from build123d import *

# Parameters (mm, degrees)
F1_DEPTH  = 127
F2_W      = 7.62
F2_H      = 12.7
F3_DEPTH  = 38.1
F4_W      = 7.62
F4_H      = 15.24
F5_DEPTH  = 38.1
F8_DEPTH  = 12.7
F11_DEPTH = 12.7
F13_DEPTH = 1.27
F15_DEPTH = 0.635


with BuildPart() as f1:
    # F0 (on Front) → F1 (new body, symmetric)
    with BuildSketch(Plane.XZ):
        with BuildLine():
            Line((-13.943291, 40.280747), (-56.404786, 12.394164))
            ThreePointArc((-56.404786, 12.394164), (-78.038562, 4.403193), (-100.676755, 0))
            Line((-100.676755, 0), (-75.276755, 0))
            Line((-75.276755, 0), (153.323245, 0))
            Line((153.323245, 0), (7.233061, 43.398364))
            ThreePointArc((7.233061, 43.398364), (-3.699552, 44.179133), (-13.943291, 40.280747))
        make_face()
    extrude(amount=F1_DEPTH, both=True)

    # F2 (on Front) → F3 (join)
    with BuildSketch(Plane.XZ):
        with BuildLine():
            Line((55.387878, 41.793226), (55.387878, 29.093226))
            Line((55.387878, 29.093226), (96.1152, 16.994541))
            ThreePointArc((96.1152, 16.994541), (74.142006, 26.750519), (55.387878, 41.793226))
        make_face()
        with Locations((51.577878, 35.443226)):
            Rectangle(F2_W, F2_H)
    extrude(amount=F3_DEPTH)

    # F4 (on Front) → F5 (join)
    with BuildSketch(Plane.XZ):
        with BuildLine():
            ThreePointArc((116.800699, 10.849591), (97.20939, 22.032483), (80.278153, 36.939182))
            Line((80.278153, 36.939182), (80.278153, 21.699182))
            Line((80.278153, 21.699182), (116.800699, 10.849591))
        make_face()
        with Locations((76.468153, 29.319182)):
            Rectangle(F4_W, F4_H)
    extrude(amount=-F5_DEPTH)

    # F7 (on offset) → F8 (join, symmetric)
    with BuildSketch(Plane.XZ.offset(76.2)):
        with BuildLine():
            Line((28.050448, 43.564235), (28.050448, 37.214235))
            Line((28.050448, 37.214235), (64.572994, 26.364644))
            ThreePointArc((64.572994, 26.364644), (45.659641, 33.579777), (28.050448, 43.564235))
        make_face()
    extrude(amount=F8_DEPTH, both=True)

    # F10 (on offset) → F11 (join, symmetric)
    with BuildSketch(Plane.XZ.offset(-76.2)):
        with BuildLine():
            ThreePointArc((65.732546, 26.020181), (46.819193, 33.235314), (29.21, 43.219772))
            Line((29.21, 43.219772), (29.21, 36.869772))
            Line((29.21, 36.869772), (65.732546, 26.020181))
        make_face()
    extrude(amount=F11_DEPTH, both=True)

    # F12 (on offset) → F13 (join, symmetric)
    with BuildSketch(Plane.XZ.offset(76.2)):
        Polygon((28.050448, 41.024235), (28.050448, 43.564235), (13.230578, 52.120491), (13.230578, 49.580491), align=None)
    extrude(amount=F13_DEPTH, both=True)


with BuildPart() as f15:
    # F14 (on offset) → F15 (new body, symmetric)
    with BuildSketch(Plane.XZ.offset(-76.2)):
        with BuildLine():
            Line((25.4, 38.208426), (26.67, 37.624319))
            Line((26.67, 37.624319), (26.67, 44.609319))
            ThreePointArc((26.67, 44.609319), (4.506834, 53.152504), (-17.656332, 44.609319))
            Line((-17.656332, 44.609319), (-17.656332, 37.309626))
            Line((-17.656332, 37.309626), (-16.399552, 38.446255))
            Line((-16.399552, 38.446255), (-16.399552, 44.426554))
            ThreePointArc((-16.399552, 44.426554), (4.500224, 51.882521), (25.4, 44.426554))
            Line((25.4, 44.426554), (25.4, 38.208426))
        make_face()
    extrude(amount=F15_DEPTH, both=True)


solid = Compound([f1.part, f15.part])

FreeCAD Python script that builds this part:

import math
import FreeCAD as App
import Part
import Sketcher

V = App.Vector
Q = App.Units.Quantity


def add_polygon(sketch, points):
    """Adds a closed chain of lines whose ends are joined by coincident constraints."""
    first, n = sketch.GeometryCount, len(points)
    for a, b in zip(points, points[1:] + points[:1]):
        sketch.addGeometry(Part.LineSegment(App.Vector(*a, 0), App.Vector(*b, 0)), False)
    for i in range(n):
        sketch.addConstraint(Sketcher.Constraint("Coincident", first + i, 2, first + (i + 1) % n, 1))

doc = App.newDocument("Part")
body = doc.addObject("PartDesign::Body", "Body")

# Sketch on XZ plane
sketch1 = body.newObject("Sketcher::SketchObject", "Sketch")
sketch1.AttachmentSupport = (doc.getObject("XZ_Plane"), [""])
sketch1.MapMode = "FlatFace"
sketch1.addGeometry([
    Part.LineSegment(V(-13.943291, 40.280747, 0), V(-56.404786, 12.394164, 0)),  # 0
    Part.ArcOfCircle(Part.Circle(V(-116.524615, 141.875422, 0), V(0, 0, 1), 142.757802), math.radians(-83.626331), math.radians(-65.093946)),  # 1
    Part.LineSegment(V(-100.676755, 0, 0), V(153.323245, 0, 0)),  # 2
    Part.LineSegment(V(153.323245, 0, 0), V(7.233061, 43.398364, 0)),  # 3
    Part.ArcOfCircle(Part.Circle(V(0, 19.050004, 0), V(0, 0, 1), 25.399996), math.radians(73.455125), math.radians(123.294908)),  # 4
], False)
sketch1.addConstraint([
    Sketcher.Constraint("Coincident", 0, 2, 1, 2),
    Sketcher.Constraint("Coincident", 1, 1, 2, 1),
    Sketcher.Constraint("Coincident", 2, 2, 3, 1),
    Sketcher.Constraint("Tangent", 3, 2, 4, 1),
    Sketcher.Constraint("Tangent", 4, 2, 0, 1),
    Sketcher.Constraint("Horizontal", 2),
    Sketcher.Constraint("PointOnObject", 4, 3, -2),
    Sketcher.Constraint("PointOnObject", 1, 1, -1),
    Sketcher.Constraint("Radius", 4, Q("0.9999999 in")),
    Sketcher.Constraint("DistanceX", 2, 1, 2, 2, Q("10 in")),
    Sketcher.Constraint("Distance", 0, Q("2 in")),
    Sketcher.Constraint("Distance", 3, Q("6 in")),
    Sketcher.Constraint("DistanceY", -1, 1, 4, 3, Q("0.7500002 in")),
    Sketcher.Constraint("Radius", 1, 142.757802),
    Sketcher.Constraint("DistanceY", 0, 2, 3, 2, 31.0042),
])
pad1 = body.newObject("PartDesign::Pad", "Pad")
pad1.Profile = sketch1
pad1.Length = Q("10 in")
pad1.Midplane = True

# Sketch on XZ plane
sketch2 = body.newObject("Sketcher::SketchObject", "Sketch001")
sketch2.AttachmentSupport = (doc.getObject("XZ_Plane"), [""])
sketch2.MapMode = "FlatFace"
sketch2.addGeometry([
    Part.LineSegment(V(55.387878, 29.093226, 0), V(96.1152, 16.994541, 0)),  # 0
    Part.ArcOfCircle(Part.Circle(V(122.707118, 106.509867, 0), V(0, 0, 1), 93.381602), math.radians(-136.129228), math.radians(-106.54487)),  # 1
    Part.LineSegment(V(55.387878, 41.793226, 0), V(47.767878, 41.793226, 0)),  # 2
    Part.LineSegment(V(47.767878, 41.793226, 0), V(47.767878, 29.093226, 0)),  # 3
    Part.LineSegment(V(47.767878, 29.093226, 0), V(55.387878, 29.093226, 0)),  # 4
], False)
sketch2.addConstraint([
    Sketcher.Constraint("Tangent", 0, 2, 1, 2),
    Sketcher.Constraint("Coincident", 1, 1, 2, 1),
    Sketcher.Constraint("Coincident", 2, 2, 3, 1),
    Sketcher.Constraint("Coincident", 3, 2, 4, 1),
    Sketcher.Constraint("Coincident", 4, 2, 0, 1),
    Sketcher.Constraint("Horizontal", 2),
    Sketcher.Constraint("Vertical", 3),
    Sketcher.Constraint("Horizontal", 4),
    Sketcher.Constraint("Vertical", 1, 1, 4, 2),
    Sketcher.Constraint("DistanceX", 2, 2, 2, 1, Q("0.3 in")),
    Sketcher.Constraint("DistanceY", 3, 2, 3, 1, Q("0.5 in")),
    Sketcher.Constraint("Radius", 1, 93.381602),
    Sketcher.Constraint("DistanceX", -1, 1, 0, 2, 96.1152),
    Sketcher.Constraint("DistanceY", -1, 1, 0, 2, 16.994541),
    Sketcher.Constraint("DistanceX", -1, 1, 1, 1, 55.387878),
])
pad2 = body.newObject("PartDesign::Pad", "Pad001")
pad2.Profile = sketch2
pad2.Length = Q("1.5 in")

# Sketch on XZ plane
sketch3 = body.newObject("Sketcher::SketchObject", "Sketch002")
sketch3.AttachmentSupport = (doc.getObject("XZ_Plane"), [""])
sketch3.MapMode = "FlatFace"
sketch3.addGeometry([
    Part.ArcOfCircle(Part.Circle(V(161.845116, 112.515361, 0), V(0, 0, 1), 111.1977), math.radians(-137.183236), math.radians(-113.896396)),  # 0
    Part.LineSegment(V(80.278153, 36.939182, 0), V(72.658153, 36.939182, 0)),  # 1
    Part.LineSegment(V(72.658153, 36.939182, 0), V(72.658153, 21.699182, 0)),  # 2
    Part.LineSegment(V(72.658153, 21.699182, 0), V(80.278153, 21.699182, 0)),  # 3
    Part.LineSegment(V(80.278153, 21.699182, 0), V(116.800699, 10.849591, 0)),  # 4
], False)
sketch3.addConstraint([
    Sketcher.Constraint("Coincident", 0, 1, 1, 1),
    Sketcher.Constraint("Coincident", 1, 2, 2, 1),
    Sketcher.Constraint("Coincident", 2, 2, 3, 1),
    Sketcher.Constraint("Coincident", 3, 2, 4, 1),
    Sketcher.Constraint("Coincident", 4, 2, 0, 2),
    Sketcher.Constraint("Horizontal", 1),
    Sketcher.Constraint("Vertical", 2),
    Sketcher.Constraint("Horizontal", 3),
    Sketcher.Constraint("Vertical", 0, 1, 3, 2),
    Sketcher.Constraint("DistanceX", 1, 2, 1, 1, Q("0.3 in")),
    Sketcher.Constraint("DistanceY", 2, 2, 2, 1, Q("0.6 in")),
    Sketcher.Constraint("Distance", 4, Q("1.5 in")),
    Sketcher.Constraint("Radius", 0, 111.1977),
    Sketcher.Constraint("DistanceX", -1, 1, 4, 2, 116.800699),
    Sketcher.Constraint("DistanceY", -1, 1, 0, 3, 112.515361),
    Sketcher.Constraint("DistanceY", -1, 1, 0, 1, 36.939182),
])
pad3 = body.newObject("PartDesign::Pad", "Pad002")
pad3.Profile = sketch3
pad3.Length = Q("1.5 in")
pad3.Reversed = True

# Sketch on XZ plane
sketch4 = body.newObject("Sketcher::SketchObject", "Sketch003")
sketch4.AttachmentSupport = (doc.getObject("XZ_Plane"), [""])
sketch4.MapMode = "FlatFace"
sketch4.AttachmentOffset = App.Placement(V(0, 0, 3 * 25.4), App.Rotation())
sketch4.addGeometry([
    Part.LineSegment(V(28.050448, 43.564235, 0), V(28.050448, 37.214235, 0)),
    Part.LineSegment(V(28.050448, 37.214235, 0), V(64.572994, 26.364644, 0)),
    Part.ArcOfCircle(Part.Circle(V(102.693804, 154.689217, 0), V(0, 0, 1), 133.867069), math.radians(-123.889508), math.radians(-106.544871)),
], False)
sketch4.addConstraint([
    Sketcher.Constraint("Coincident", 0, 2, 1, 1),
    Sketcher.Constraint("Tangent", 1, 2, 2, 2),
    Sketcher.Constraint("Coincident", 2, 1, 0, 1),
    Sketcher.Constraint("Vertical", 0),
    Sketcher.Constraint("Distance", 1, Q("1.5 in")),
    Sketcher.Constraint("DistanceY", 0, 2, 0, 1, Q("0.25 in")),
    Sketcher.Constraint("Radius", 2, 133.867069),
    Sketcher.Constraint("DistanceX", -1, 1, 2, 1, 28.050448),
    Sketcher.Constraint("DistanceY", -1, 1, 2, 3, 154.689217),
])
pad4 = body.newObject("PartDesign::Pad", "Pad003")
pad4.Profile = sketch4
pad4.Length = Q("1 in")
pad4.Midplane = True

# Sketch on XZ plane
sketch5 = body.newObject("Sketcher::SketchObject", "Sketch004")
sketch5.AttachmentSupport = (doc.getObject("XZ_Plane"), [""])
sketch5.MapMode = "FlatFace"
sketch5.AttachmentOffset = App.Placement(V(0, 0, -3 * 25.4), App.Rotation())
sketch5.addGeometry([
    Part.ArcOfCircle(Part.Circle(V(103.853356, 154.344754, 0), V(0, 0, 1), 133.867069), math.radians(-123.889508), math.radians(-106.544871)),
    Part.LineSegment(V(29.21, 43.219772, 0), V(29.21, 36.869772, 0)),
    Part.LineSegment(V(29.21, 36.869772, 0), V(65.732546, 26.020181, 0)),
], False)
sketch5.addConstraint([
    Sketcher.Constraint("Coincident", 0, 1, 1, 1),
    Sketcher.Constraint("Coincident", 1, 2, 2, 1),
    Sketcher.Constraint("Tangent", 2, 2, 0, 2),
    Sketcher.Constraint("Vertical", 1),
    Sketcher.Constraint("Distance", 2, Q("1.5 in")),
    Sketcher.Constraint("DistanceY", 1, 2, 1, 1, Q("0.25 in")),
    Sketcher.Constraint("DistanceX", -1, 1, 0, 1, Q("1.15 in")),
    Sketcher.Constraint("Radius", 0, 133.867069),
    Sketcher.Constraint("DistanceY", -1, 1, 1, 2, 36.869772),
])
pad5 = body.newObject("PartDesign::Pad", "Pad004")
pad5.Profile = sketch5
pad5.Length = Q("1 in")
pad5.Midplane = True

# Sketch on XZ plane
sketch6 = body.newObject("Sketcher::SketchObject", "Sketch005")
sketch6.AttachmentSupport = (doc.getObject("XZ_Plane"), [""])
sketch6.MapMode = "FlatFace"
sketch6.AttachmentOffset = App.Placement(V(0, 0, 3 * 25.4), App.Rotation())
add_polygon(sketch6, [(28.050448, 41.024235), (28.050448, 43.564235), (13.230578, 52.120491), (13.230578, 49.580491)])  # lines 0-3
sketch6.addConstraint([
    Sketcher.Constraint("Vertical", 0),
    Sketcher.Constraint("Vertical", 2),
    Sketcher.Constraint("Parallel", 1, 3),
    Sketcher.Constraint("DistanceY", 0, 1, 0, 2, Q("0.1 in")),
    Sketcher.Constraint("Angle", 1, Q("150 deg")),
    Sketcher.Constraint("Distance", 1, 17.112512),
    Sketcher.Constraint("DistanceY", -1, 1, 1, 2, 52.120491),
    Sketcher.Constraint("DistanceX", -1, 1, 0, 2, 28.050448),
])
pad6 = body.newObject("PartDesign::Pad", "Pad005")
pad6.Profile = sketch6
pad6.Length = Q("0.1 in")
pad6.Midplane = True
body2 = doc.addObject("PartDesign::Body", "Body001")

# Sketch on XZ plane
sketch7 = body2.newObject("Sketcher::SketchObject", "Sketch006")
sketch7.AttachmentSupport = (doc.getObject("XZ_Plane001"), [""])
sketch7.MapMode = "FlatFace"
sketch7.AttachmentOffset = App.Placement(V(0, 0, -3 * 25.4), App.Rotation())
sketch7.addGeometry([
    Part.LineSegment(V(25.4, 38.208426, 0), V(26.67, 37.624319, 0)),  # 0
    Part.LineSegment(V(26.67, 37.624319, 0), V(26.67, 44.609319, 0)),  # 1
    Part.ArcOfCircle(Part.Circle(V(4.506834, 20.132504, 0), V(0, 0, 1), 33.02), math.radians(47.839919), math.radians(132.160081)),  # 2
    Part.LineSegment(V(-17.656332, 44.609319, 0), V(-17.656332, 37.309626, 0)),  # 3
    Part.LineSegment(V(-17.656332, 37.309626, 0), V(-16.399552, 38.446255, 0)),  # 4
    Part.LineSegment(V(-16.399552, 38.446255, 0), V(-16.399552, 44.426554, 0)),  # 5
    Part.ArcOfCircle(Part.Circle(V(4.500224, 18.86252, 0), V(0, 0, 1), 33.020001), math.radians(50.732419), math.radians(129.267581)),  # 6
    Part.LineSegment(V(25.4, 44.426554, 0), V(25.4, 38.208426, 0)),  # 7
], False)
sketch7.addConstraint([
    Sketcher.Constraint("Coincident", 0, 2, 1, 1),
    Sketcher.Constraint("Coincident", 1, 2, 2, 1),
    Sketcher.Constraint("Coincident", 2, 2, 3, 1),
    Sketcher.Constraint("Coincident", 3, 2, 4, 1),
    Sketcher.Constraint("Coincident", 4, 2, 5, 1),
    Sketcher.Constraint("Coincident", 5, 2, 6, 2),
    Sketcher.Constraint("Coincident", 6, 1, 7, 1),
    Sketcher.Constraint("Coincident", 7, 2, 0, 1),
    Sketcher.Constraint("Vertical", 1),
    Sketcher.Constraint("Vertical", 3),
    Sketcher.Constraint("Vertical", 5),
    Sketcher.Constraint("Vertical", 7),
    Sketcher.Constraint("Equal", 2, 6),
    Sketcher.Constraint("Horizontal", 1, 2, 2, 2),
    Sketcher.Constraint("Horizontal", 5, 2, 6, 1),
    Sketcher.Constraint("Radius", 2, Q("1.3 in")),
    Sketcher.Constraint("DistanceX", -1, 1, 6, 1, Q("1 in")),
    Sketcher.Constraint("DistanceY", 1, 1, 1, 2, Q("0.275 in")),
    Sketcher.Constraint("DistanceX", -1, 1, 0, 2, Q("1.05 in")),
    Sketcher.Constraint("DistanceY", 5, 1, 5, 2, 5.980299),
    Sketcher.Constraint("DistanceY", 6, 3, 0, 2, 18.761799),
    Sketcher.Constraint("DistanceY", 3, 2, 3, 1, 7.299693),
    Sketcher.Constraint("DistanceY", 7, 2, 7, 1, 6.218128),
    Sketcher.Constraint("DistanceY", -1, 1, 6, 3, 18.86252),
    Sketcher.Constraint("DistanceX", 3, 2, -1, 1, 17.656332),
    Sketcher.Constraint("DistanceX", 4, 2, -1, 1, 16.399552),
])
pad7 = body2.newObject("PartDesign::Pad", "Pad006")
pad7.Profile = sketch7
pad7.Length = Q("0.05 in")
pad7.Midplane = True

doc.recompute()
